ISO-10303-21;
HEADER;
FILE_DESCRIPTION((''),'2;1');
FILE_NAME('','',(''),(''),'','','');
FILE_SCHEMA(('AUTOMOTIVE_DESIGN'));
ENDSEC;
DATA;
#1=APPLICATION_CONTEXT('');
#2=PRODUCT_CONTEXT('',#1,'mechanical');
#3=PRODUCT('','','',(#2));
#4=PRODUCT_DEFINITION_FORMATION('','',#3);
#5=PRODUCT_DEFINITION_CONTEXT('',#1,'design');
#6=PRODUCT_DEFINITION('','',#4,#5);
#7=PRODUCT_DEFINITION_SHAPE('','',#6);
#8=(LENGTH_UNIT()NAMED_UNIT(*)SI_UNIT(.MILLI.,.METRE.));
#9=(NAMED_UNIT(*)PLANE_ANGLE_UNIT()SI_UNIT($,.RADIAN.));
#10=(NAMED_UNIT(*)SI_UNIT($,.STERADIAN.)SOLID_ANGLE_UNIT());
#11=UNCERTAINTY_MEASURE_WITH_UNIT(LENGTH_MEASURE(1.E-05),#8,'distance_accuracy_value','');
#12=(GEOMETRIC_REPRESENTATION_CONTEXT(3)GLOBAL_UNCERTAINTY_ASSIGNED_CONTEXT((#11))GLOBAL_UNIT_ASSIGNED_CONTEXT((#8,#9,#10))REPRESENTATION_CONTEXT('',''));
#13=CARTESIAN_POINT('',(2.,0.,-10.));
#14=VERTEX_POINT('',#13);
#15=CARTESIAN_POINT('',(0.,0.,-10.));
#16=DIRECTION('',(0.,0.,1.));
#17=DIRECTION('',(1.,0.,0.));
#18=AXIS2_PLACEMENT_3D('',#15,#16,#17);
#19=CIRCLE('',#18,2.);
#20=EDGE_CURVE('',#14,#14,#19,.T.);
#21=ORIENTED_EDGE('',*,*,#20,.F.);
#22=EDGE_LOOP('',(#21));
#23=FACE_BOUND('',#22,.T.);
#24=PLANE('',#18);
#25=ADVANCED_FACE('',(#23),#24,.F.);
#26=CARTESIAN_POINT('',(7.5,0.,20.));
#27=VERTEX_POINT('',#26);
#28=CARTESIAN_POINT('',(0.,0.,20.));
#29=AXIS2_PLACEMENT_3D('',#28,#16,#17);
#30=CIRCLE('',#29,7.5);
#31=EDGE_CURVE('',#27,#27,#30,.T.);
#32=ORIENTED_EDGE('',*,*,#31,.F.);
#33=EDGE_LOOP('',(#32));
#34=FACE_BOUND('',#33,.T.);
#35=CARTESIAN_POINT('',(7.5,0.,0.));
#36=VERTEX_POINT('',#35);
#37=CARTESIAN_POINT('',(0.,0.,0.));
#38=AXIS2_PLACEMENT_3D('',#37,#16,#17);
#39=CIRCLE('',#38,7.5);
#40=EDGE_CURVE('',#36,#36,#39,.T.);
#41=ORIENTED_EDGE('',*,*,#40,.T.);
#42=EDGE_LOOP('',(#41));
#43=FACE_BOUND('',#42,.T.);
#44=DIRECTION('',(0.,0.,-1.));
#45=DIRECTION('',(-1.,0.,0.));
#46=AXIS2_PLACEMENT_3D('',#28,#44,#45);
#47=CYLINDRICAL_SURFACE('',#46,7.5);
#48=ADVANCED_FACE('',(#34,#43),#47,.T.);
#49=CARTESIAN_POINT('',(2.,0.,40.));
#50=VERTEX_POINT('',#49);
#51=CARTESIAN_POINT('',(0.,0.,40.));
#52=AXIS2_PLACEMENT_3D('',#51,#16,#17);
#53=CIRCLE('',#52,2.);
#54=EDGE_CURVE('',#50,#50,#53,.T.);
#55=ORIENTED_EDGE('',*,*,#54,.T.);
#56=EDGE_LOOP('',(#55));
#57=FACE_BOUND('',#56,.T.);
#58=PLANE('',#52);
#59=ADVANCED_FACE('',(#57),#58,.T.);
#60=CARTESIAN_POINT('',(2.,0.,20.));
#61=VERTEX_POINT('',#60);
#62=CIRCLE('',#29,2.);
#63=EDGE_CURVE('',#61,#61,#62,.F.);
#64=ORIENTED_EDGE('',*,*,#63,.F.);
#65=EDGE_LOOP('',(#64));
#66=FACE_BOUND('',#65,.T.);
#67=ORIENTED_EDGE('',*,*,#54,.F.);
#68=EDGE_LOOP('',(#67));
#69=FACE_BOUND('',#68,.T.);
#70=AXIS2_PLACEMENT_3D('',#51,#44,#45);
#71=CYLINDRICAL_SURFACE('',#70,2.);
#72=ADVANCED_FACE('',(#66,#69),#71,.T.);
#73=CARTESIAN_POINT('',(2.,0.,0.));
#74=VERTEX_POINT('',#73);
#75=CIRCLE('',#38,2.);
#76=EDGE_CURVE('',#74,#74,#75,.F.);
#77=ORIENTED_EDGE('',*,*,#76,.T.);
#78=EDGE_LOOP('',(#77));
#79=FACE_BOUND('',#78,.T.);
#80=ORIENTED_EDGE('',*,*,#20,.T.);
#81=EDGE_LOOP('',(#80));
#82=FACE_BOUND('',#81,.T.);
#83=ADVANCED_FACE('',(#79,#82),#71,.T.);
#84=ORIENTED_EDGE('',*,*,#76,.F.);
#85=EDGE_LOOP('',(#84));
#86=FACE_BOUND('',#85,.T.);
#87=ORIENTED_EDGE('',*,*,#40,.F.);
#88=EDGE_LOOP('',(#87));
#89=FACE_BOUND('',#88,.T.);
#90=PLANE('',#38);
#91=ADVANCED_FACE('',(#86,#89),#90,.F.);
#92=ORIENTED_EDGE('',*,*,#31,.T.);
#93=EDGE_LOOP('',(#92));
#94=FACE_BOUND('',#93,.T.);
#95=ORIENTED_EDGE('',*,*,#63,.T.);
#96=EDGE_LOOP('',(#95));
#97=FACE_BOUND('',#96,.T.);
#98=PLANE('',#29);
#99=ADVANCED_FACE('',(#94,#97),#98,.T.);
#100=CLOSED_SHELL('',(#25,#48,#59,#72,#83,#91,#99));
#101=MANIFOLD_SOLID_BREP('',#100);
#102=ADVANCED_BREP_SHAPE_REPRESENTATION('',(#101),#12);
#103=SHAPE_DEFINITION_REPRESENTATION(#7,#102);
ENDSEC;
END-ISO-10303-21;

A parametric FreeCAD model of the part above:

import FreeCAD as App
import Part
import Sketcher
from FreeCAD import Vector
Q = App.Units.Quantity

doc = App.newDocument("Part")
body = doc.addObject("PartDesign::Body", "Body")

sketch1 = body.newObject("Sketcher::SketchObject", "Sketch")
sketch1.AttachmentSupport = (doc.getObject("XY_Plane"), [""])
sketch1.MapMode = "FlatFace"
sketch1.addGeometry(Part.Circle(Vector(0, 0, 0), Vector(0, 0, 1), 8), False)
sketch1.addConstraint(Sketcher.Constraint("Coincident", 0, 3, -1, 1))
sketch1.addConstraint(Sketcher.Constraint("Diameter", 0, Q("15 mm")))
pad1 = body.newObject("PartDesign::Pad", "Pad")
pad1.Profile = sketch1
pad1.Length = 20

sketch2 = body.newObject("Sketcher::SketchObject", "Sketch001")
sketch2.AttachmentSupport = (doc.getObject("XY_Plane"), [""])
sketch2.MapMode = "FlatFace"
sketch2.addGeometry(Part.Circle(Vector(0, 0, 0), Vector(0, 0, 1), 1), False)
sketch2.addConstraint(Sketcher.Constraint("Coincident", 0, 3, -1, 1))
sketch2.addConstraint(Sketcher.Constraint("Diameter", 0, Q("2 mm")))
pad2 = body.newObject("PartDesign::Pad", "Pad001")
pad2.Profile = sketch2
pad2.Type = "TwoLengths"
pad2.Length = 40
pad2.Length2 = 10

sketch3 = body.newObject("Sketcher::SketchObject", "Sketch002")
sketch3.AttachmentSupport = (doc.getObject("XY_Plane"), [""])
sketch3.MapMode = "FlatFace"
sketch3.addGeometry(Part.Circle(Vector(0, 0, 0), Vector(0, 0, 1), 2), False)
sketch3.addConstraint(Sketcher.Constraint("Coincident", 0, 3, -1, 1))
sketch3.addConstraint(Sketcher.Constraint("Diameter", 0, Q("4 mm")))
pad3 = body.newObject("PartDesign::Pad", "Pad002")
pad3.Profile = sketch3
pad3.Type = "TwoLengths"
pad3.Length = 40
pad3.Length2 = 10

doc.recompute()
